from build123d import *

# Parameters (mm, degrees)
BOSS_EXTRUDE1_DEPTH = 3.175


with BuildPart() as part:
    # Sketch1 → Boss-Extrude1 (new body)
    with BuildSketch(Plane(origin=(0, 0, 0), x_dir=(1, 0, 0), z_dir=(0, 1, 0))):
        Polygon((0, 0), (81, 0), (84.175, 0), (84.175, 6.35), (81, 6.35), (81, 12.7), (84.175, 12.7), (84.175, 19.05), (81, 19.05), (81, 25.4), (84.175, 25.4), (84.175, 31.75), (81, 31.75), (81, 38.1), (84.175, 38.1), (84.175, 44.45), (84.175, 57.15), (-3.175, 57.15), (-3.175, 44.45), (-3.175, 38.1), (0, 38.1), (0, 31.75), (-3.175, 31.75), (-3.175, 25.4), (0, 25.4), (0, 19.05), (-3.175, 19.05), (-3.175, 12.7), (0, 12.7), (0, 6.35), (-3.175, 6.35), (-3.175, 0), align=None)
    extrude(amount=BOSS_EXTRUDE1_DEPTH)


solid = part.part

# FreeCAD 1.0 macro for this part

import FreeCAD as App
import Part
import Sketcher
Q = App.Units.Quantity


def add_polygon(sketch, points):
    """Adds a closed chain of lines whose ends are joined by coincident constraints."""
    first, n = sketch.GeometryCount, len(points)
    for a, b in zip(points, points[1:] + points[:1]):
        sketch.addGeometry(Part.LineSegment(App.Vector(*a, 0), App.Vector(*b, 0)), False)
    for i in range(n):
        sketch.addConstraint(Sketcher.Constraint("Coincident", first + i, 2, first + (i + 1) % n, 1))

doc = App.newDocument("Part")
body = doc.addObject("PartDesign::Body", "Body")

sketch1 = body.newObject("Sketcher::SketchObject", "Sketch")
sketch1.AttachmentSupport = (doc.getObject("XZ_Plane"), [""])
sketch1.MapMode = "FlatFace"
add_polygon(sketch1, [(84.2, 0), (84.2, -6.3), (81, -6.3), (81, -12.7), (84.2, -12.7), (84.2, -19.1), (81, -19.1), (81, -25.4), (84.2, -25.4), (84.2, -31.8), (81, -31.8), (81, -38.1), (84.2, -38.1), (84.2, -57.1), (-3.2, -57.1), (-3.2, -38.1), (0, -38.1), (0, -31.8), (-3.2, -31.8), (-3.2, -25.4), (0, -25.4), (0, -19.1), (-3.2, -19.1), (-3.2, -12.7), (0, -12.7), (0, -6.3), (-3.2, -6.3), (-3.2, 0)])
sketch1.addConstraint([
    Sketcher.Constraint("Vertical", 0),
    Sketcher.Constraint("Horizontal", 1),
    Sketcher.Constraint("Vertical", 2),
    Sketcher.Constraint("Horizontal", 3),
    Sketcher.Constraint("Vertical", 4),
    Sketcher.Constraint("Horizontal", 5),
    Sketcher.Constraint("Vertical", 6),
    Sketcher.Constraint("Horizontal", 7),
    Sketcher.Constraint("Vertical", 8),
    Sketcher.Constraint("Horizontal", 9),
    Sketcher.Constraint("Vertical", 10),
    Sketcher.Constraint("Horizontal", 11),
    Sketcher.Constraint("Vertical", 12),
    Sketcher.Constraint("Horizontal", 13),
    Sketcher.Constraint("Vertical", 14),
    Sketcher.Constraint("Horizontal", 15),
    Sketcher.Constraint("Vertical", 16),
    Sketcher.Constraint("Horizontal", 17),
    Sketcher.Constraint("Vertical", 18),
    Sketcher.Constraint("Horizontal", 19),
    Sketcher.Constraint("Vertical", 20),
    Sketcher.Constraint("Horizontal", 21),
    Sketcher.Constraint("Vertical", 22),
    Sketcher.Constraint("Horizontal", 23),
    Sketcher.Constraint("Vertical", 24),
    Sketcher.Constraint("Horizontal", 25),
    Sketcher.Constraint("Vertical", 26),
    Sketcher.Constraint("Horizontal", 27),
    Sketcher.Constraint("PointOnObject", 15, 2, -2),
    Sketcher.Constraint("PointOnObject", 19, 2, -2),
    Sketcher.Constraint("PointOnObject", 23, 2, -2),
    Sketcher.Constraint("PointOnObject", 26, 2, -1),
    Sketcher.Constraint("Horizontal", 11, 2, 14, 2),
    Sketcher.Constraint("Horizontal", 9, 2, 16, 2),
    Sketcher.Constraint("Horizontal", 7, 2, 18, 2),
    Sketcher.Constraint("Horizontal", 5, 2, 20, 2),
    Sketcher.Constraint("Horizontal", 3, 2, 22, 2),
    Sketcher.Constraint("Horizontal", 1, 2, 24, 2),
    Sketcher.Constraint("Vertical", 0, 2, 3, 2),
    Sketcher.Constraint("Vertical", 2, 2, 5, 2),
    Sketcher.Constraint("Vertical", 4, 2, 7, 2),
    Sketcher.Constraint("Vertical", 6, 2, 9, 2),
    Sketcher.Constraint("Vertical", 8, 2, 11, 2),
    Sketcher.Constraint("Vertical", 14, 2, 17, 2),
    Sketcher.Constraint("Vertical", 18, 2, 21, 2),
    Sketcher.Constraint("Vertical", 22, 2, 25, 2),
    Sketcher.Constraint("Equal", 11, 15),
    Sketcher.Constraint("Equal", 0, 2),
    Sketcher.Constraint("Equal", 2, 4),
    Sketcher.Constraint("Equal", 4, 6),
    Sketcher.Constraint("Equal", 6, 8),
    Sketcher.Constraint("Equal", 8, 10),
    Sketcher.Constraint("DistanceY", 6, 2, -1, 1, Q("1 in")),
    Sketcher.Constraint("DistanceY", 12, 2, 8, 2, Q("1 in")),
    Sketcher.Constraint("DistanceX", 1, 2, 1, 1, Q("0.125 in")),
    Sketcher.Constraint("DistanceX", 13, 2, 13, 1, 87.35),
])
pad1 = body.newObject("PartDesign::Pad", "Pad")
pad1.Profile = sketch1
pad1.Length = Q("0.125 in")
pad1.Reversed = True

doc.recompute()
